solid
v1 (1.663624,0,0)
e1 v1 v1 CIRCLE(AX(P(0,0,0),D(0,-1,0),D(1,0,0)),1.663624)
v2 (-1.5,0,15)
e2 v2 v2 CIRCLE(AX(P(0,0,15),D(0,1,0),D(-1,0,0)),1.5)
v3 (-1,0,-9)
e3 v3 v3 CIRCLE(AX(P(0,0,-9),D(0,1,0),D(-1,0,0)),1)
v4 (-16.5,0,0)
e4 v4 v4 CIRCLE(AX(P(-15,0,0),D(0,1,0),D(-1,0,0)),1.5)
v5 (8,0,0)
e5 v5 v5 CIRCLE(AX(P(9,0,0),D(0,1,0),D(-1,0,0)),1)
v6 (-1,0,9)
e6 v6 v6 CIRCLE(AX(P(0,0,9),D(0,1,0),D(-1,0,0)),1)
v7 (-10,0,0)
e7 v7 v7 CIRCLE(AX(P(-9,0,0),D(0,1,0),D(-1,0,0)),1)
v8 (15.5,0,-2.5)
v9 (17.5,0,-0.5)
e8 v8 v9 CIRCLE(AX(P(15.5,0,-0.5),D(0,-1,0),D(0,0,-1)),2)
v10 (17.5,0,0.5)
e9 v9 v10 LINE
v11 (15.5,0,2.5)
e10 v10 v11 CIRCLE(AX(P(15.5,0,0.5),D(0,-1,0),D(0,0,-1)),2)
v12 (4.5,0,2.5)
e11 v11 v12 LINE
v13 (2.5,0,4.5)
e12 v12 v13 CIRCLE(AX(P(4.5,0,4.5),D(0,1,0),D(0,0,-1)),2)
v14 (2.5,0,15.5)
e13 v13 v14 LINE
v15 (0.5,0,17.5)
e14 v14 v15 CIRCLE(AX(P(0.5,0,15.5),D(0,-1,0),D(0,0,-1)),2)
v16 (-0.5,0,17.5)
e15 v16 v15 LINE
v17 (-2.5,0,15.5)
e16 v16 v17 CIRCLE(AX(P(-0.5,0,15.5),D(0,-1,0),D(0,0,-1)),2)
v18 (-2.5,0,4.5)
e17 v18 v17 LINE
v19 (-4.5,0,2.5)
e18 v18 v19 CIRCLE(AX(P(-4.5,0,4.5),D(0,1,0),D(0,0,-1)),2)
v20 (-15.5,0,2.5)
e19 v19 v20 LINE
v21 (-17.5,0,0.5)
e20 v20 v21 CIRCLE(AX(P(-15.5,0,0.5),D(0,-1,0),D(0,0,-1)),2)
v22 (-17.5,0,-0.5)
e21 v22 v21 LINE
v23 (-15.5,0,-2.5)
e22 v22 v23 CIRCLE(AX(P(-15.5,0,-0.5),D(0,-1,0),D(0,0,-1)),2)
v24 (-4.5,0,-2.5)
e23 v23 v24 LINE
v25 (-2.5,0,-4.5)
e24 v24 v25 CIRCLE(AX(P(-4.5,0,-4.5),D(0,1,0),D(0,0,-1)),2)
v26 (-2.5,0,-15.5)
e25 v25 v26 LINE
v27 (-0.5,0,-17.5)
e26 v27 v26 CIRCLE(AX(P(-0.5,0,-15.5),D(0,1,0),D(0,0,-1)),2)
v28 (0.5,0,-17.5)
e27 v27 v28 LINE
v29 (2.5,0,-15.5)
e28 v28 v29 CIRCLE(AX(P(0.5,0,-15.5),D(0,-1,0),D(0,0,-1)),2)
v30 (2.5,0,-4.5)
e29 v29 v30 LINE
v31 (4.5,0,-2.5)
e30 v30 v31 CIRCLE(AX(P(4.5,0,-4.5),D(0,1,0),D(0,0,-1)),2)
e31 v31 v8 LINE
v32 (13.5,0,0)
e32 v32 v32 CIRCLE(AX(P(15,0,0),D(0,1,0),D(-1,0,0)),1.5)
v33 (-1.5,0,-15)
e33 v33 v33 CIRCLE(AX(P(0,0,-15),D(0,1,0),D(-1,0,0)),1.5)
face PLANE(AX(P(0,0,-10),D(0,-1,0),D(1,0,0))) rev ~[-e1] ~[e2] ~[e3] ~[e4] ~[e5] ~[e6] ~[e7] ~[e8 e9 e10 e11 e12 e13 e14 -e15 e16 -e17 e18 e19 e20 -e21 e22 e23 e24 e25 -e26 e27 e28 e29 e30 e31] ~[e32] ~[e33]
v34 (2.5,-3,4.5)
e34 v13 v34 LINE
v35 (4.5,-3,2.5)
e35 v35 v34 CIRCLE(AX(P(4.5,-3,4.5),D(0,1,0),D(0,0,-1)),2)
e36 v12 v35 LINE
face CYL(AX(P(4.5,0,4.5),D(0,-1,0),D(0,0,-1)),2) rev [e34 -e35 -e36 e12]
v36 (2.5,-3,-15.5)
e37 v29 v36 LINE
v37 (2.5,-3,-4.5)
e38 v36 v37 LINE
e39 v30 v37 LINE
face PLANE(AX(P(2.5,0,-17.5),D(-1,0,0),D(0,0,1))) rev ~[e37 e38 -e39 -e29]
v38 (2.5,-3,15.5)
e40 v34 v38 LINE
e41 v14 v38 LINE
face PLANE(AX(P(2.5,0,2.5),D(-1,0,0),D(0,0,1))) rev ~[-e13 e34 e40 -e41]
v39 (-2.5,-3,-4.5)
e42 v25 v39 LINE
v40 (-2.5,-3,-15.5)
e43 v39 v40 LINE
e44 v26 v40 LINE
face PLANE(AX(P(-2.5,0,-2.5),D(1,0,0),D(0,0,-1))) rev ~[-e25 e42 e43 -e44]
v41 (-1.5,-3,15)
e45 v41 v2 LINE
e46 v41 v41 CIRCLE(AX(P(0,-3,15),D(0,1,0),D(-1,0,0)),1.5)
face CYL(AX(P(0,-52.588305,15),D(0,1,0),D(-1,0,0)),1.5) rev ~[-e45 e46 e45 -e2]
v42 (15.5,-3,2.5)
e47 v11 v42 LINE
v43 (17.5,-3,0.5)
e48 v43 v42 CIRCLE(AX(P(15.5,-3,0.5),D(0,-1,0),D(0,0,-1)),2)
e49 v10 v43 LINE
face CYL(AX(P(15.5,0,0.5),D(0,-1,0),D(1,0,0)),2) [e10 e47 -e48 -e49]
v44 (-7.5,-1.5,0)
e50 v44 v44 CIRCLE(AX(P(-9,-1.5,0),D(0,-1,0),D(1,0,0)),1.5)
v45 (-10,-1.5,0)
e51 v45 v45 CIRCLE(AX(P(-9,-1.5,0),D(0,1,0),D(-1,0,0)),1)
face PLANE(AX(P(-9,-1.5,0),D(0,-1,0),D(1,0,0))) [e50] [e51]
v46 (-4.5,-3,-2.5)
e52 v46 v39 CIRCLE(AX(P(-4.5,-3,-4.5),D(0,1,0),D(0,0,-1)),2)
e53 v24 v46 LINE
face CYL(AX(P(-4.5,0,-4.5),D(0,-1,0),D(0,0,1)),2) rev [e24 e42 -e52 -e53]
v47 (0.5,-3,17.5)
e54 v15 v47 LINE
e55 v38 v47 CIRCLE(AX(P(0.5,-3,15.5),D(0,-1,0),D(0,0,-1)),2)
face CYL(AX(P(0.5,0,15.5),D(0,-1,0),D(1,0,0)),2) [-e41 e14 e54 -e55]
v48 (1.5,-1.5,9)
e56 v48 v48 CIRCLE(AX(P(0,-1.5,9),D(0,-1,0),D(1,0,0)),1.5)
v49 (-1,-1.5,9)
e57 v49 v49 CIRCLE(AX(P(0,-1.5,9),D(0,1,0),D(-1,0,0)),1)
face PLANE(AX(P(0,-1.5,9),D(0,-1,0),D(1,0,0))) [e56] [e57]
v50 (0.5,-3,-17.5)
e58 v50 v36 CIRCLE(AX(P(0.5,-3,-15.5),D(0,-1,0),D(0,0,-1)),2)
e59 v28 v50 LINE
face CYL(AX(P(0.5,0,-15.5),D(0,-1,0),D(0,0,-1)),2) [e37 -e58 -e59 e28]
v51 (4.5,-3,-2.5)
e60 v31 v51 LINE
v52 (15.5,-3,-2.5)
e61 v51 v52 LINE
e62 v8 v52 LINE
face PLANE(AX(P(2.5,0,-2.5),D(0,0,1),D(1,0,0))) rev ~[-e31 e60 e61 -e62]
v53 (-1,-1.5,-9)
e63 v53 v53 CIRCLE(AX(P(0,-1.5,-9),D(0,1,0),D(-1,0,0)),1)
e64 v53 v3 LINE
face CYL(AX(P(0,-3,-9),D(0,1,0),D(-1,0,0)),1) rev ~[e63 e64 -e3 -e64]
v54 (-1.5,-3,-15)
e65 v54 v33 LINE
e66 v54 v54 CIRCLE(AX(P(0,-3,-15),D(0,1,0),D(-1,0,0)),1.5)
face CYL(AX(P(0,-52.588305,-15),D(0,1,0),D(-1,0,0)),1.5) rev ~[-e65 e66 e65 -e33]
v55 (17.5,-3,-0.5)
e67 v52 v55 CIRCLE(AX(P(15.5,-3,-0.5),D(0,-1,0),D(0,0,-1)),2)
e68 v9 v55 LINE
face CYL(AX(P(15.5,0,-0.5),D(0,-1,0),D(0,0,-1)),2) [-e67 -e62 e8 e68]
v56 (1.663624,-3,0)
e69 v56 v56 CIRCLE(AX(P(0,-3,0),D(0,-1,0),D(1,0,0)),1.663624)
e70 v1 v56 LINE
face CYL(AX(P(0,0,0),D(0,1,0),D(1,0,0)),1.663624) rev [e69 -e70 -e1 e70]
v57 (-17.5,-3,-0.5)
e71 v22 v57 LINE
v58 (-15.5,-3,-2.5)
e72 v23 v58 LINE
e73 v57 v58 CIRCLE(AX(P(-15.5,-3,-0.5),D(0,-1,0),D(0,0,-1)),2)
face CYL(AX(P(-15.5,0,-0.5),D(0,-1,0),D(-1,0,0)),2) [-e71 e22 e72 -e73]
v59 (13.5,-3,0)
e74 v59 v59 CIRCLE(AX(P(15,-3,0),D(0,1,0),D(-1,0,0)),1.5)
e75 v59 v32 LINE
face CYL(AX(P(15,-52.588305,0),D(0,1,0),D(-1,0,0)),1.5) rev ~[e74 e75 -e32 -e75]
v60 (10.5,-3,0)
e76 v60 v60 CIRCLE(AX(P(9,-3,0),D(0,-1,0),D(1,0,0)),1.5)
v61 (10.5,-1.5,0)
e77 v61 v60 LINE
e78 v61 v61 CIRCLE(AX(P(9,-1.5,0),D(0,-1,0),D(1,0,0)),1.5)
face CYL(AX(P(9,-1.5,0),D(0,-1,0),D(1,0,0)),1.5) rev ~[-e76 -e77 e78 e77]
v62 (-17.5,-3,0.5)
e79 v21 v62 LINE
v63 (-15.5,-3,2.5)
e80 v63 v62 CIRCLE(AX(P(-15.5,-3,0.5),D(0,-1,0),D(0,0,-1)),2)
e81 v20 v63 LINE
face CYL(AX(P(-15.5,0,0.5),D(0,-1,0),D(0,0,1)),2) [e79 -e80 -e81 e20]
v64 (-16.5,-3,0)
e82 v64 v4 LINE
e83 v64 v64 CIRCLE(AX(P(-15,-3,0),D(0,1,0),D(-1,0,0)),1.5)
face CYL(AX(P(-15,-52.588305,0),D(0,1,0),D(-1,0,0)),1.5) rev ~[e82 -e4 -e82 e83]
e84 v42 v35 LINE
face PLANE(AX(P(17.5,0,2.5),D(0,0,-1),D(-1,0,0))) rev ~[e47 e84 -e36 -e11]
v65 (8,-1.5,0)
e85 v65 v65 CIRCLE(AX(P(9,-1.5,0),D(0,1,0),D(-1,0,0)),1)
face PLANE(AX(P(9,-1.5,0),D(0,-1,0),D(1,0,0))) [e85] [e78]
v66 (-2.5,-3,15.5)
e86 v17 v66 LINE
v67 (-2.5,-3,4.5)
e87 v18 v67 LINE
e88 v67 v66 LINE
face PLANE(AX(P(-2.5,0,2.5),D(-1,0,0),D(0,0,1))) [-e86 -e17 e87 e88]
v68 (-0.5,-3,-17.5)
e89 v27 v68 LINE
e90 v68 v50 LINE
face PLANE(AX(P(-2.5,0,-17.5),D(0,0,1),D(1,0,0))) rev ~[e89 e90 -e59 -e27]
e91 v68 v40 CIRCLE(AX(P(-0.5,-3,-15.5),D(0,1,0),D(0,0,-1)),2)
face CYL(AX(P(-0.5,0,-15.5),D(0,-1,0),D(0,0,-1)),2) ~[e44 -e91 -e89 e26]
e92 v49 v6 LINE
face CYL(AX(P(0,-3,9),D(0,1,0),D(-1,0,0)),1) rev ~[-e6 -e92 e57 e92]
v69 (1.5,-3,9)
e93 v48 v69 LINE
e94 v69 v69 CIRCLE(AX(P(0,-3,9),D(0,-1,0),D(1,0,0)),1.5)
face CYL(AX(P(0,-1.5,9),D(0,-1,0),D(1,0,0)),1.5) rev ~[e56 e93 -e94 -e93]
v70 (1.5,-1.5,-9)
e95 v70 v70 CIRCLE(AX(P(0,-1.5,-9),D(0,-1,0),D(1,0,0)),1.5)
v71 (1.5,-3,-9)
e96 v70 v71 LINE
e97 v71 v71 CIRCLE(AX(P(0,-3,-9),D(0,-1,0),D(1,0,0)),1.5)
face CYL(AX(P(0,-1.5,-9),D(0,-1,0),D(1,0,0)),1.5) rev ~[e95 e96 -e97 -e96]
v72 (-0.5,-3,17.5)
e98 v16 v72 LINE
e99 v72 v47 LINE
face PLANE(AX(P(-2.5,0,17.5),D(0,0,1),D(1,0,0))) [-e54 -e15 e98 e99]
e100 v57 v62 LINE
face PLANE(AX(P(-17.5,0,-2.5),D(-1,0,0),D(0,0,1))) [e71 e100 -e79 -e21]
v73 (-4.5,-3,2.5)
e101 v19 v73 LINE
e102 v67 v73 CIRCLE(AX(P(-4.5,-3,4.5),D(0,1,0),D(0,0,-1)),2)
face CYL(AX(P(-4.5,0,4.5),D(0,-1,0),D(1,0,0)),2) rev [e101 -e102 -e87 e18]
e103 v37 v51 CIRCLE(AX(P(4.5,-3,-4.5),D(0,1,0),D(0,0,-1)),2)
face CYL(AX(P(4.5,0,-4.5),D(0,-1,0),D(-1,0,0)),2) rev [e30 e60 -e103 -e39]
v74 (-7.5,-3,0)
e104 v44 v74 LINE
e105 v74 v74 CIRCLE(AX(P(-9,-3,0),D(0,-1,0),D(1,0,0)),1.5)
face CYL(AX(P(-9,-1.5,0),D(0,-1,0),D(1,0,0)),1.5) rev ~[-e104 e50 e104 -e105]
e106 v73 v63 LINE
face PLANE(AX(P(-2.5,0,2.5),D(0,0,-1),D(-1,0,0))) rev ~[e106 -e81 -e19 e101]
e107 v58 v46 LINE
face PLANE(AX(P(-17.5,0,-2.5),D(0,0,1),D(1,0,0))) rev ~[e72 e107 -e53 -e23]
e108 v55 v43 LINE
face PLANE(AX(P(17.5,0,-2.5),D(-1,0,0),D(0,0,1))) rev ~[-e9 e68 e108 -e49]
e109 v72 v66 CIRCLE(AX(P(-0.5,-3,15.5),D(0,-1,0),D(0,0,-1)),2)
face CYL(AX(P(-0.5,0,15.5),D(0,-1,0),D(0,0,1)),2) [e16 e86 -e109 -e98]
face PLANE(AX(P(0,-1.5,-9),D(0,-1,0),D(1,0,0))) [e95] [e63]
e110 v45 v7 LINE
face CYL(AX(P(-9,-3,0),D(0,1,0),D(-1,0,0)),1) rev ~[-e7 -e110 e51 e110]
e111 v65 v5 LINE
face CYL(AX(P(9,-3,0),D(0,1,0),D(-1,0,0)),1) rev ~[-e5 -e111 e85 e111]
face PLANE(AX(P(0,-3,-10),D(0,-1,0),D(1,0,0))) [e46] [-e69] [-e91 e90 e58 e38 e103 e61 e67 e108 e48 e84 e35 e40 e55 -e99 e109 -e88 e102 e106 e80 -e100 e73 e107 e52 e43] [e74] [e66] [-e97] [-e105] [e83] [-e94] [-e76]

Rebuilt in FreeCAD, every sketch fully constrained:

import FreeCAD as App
import Part
import Sketcher

V = App.Vector


def edges_at(feature, points):
    """Names of the edges that pass closest to the given points."""
    edges = feature.Shape.Edges
    near = lambda p: min(range(len(edges)), key=lambda i: edges[i].distToShape(Part.Vertex(*p))[0])
    return sorted({f"Edge{near(p) + 1}" for p in points})


def add_polygon(sketch, points):
    """Adds a closed chain of lines whose ends are joined by coincident constraints."""
    first, n = sketch.GeometryCount, len(points)
    for a, b in zip(points, points[1:] + points[:1]):
        sketch.addGeometry(Part.LineSegment(App.Vector(*a, 0), App.Vector(*b, 0)), False)
    for i in range(n):
        sketch.addConstraint(Sketcher.Constraint("Coincident", first + i, 2, first + (i + 1) % n, 1))

doc = App.newDocument("Part")
body = doc.addObject("PartDesign::Body", "Body")

sketch1 = body.newObject("Sketcher::SketchObject", "Sketch")
sketch1.AttachmentSupport = (doc.getObject("XZ_Plane"), [""])
sketch1.MapMode = "FlatFace"
add_polygon(sketch1, [(-2.5, -17.5), (2.5, -17.5), (2.5, -2.5), (17.5, -2.5), (17.5, 2.5), (2.5, 2.5), (2.5, 17.5), (-2.5, 17.5), (-2.5, 2.5), (-17.5, 2.5), (-17.5, -2.5), (-2.5, -2.5)])
sketch1.addGeometry(Part.Circle(V(0, 0, 0), V(0, 0, 1), 1.7), False)
sketch1.addConstraint(Sketcher.Constraint("Horizontal", 0))
sketch1.addConstraint(Sketcher.Constraint("Vertical", 1))
sketch1.addConstraint(Sketcher.Constraint("Horizontal", 2))
sketch1.addConstraint(Sketcher.Constraint("Vertical", 3))
sketch1.addConstraint(Sketcher.Constraint("Horizontal", 4))
sketch1.addConstraint(Sketcher.Constraint("Vertical", 5))
sketch1.addConstraint(Sketcher.Constraint("Horizontal", 6))
sketch1.addConstraint(Sketcher.Constraint("Vertical", 7))
sketch1.addConstraint(Sketcher.Constraint("Horizontal", 8))
sketch1.addConstraint(Sketcher.Constraint("Vertical", 9))
sketch1.addConstraint(Sketcher.Constraint("Horizontal", 10))
sketch1.addConstraint(Sketcher.Constraint("Vertical", 11))
sketch1.addConstraint(Sketcher.Constraint("Coincident", 12, 3, -1, 1))
sketch1.addConstraint(Sketcher.Constraint("Symmetric", 0, 2, 6, 2, -1, 1))
sketch1.addConstraint(Sketcher.Constraint("Symmetric", 2, 2, 8, 2, -1, 1))
sketch1.addConstraint(Sketcher.Constraint("Symmetric", 4, 2, 10, 2, -1, 1))
sketch1.addConstraint(Sketcher.Constraint("Symmetric", 4, 2, 7, 2, -2))
sketch1.addConstraint(Sketcher.Constraint("Equal", 10, 1))
sketch1.addConstraint(Sketcher.Constraint("Equal", 6, 3))
sketch1.addConstraint(Sketcher.Constraint("DistanceX", 0, 1, 0, 2, 5.0))
sketch1.addConstraint(Sketcher.Constraint("DistanceX", 2, 1, 2, 2, 15.0))
sketch1.addConstraint(Sketcher.Constraint("Diameter", 12, 3.327249))
pad1 = body.newObject("PartDesign::Pad", "Pad")
pad1.Profile = sketch1
pad1.Length = 3
doc.recompute()

fillet = body.newObject("PartDesign::Fillet", "Fillet")
fillet.Base = (pad1, edges_at(pad1, [
    (17.5, -1.5, 2.5),
    (17.5, -1.5, -2.5),
    (2.5, -1.5, -17.5),
    (-17.5, -1.5, 2.5),
    (2.5, -1.5, 17.5),
    (-2.5, -1.5, 17.5),
    (-2.5, -1.5, -17.5),
    (-17.5, -1.5, -2.5),
    (-2.5, -1.5, 2.5),
    (2.5, -1.5, -2.5),
    (2.5, -1.5, 2.5),
    (-2.5, -1.5, -2.5),
]))
fillet.Radius = 2

sketch2 = body.newObject("Sketcher::SketchObject", "Sketch001")
sketch2.AttachmentSupport = (doc.getObject("XZ_Plane"), [""])
sketch2.MapMode = "FlatFace"
sketch2.AttachmentOffset = App.Placement(V(0, 0, 3), App.Rotation())
sketch2.addGeometry(Part.Circle(V(-15, 0, 0), V(0, 0, 1), 1.5), False)
sketch2.addGeometry(Part.Circle(V(0, 15, 0), V(0, 0, 1), 1.5), False)
sketch2.addGeometry(Part.Circle(V(15, 0, 0), V(0, 0, 1), 1.5), False)
sketch2.addGeometry(Part.Circle(V(0, -15, 0), V(0, 0, 1), 1.5), False)
sketch2.addConstraint(Sketcher.Constraint("Equal", 0, 1))
sketch2.addConstraint(Sketcher.Constraint("Equal", 1, 2))
sketch2.addConstraint(Sketcher.Constraint("Equal", 2, 3))
sketch2.addConstraint(Sketcher.Constraint("Symmetric", 0, 3, 2, 3, -1, 1))
sketch2.addConstraint(Sketcher.Constraint("Symmetric", 1, 3, 3, 3, -1, 1))
sketch2.addConstraint(Sketcher.Constraint("PointOnObject", 0, 3, -1))
sketch2.addConstraint(Sketcher.Constraint("PointOnObject", 1, 3, -2))
sketch2.addConstraint(Sketcher.Constraint("Diameter", 0, 3.0))
sketch2.addConstraint(Sketcher.Constraint("DistanceX", 0, 3, -1, 1, 15.0))
sketch2.addConstraint(Sketcher.Constraint("DistanceY", -1, 1, 1, 3, 15.0))
doc.recompute()
hole = body.newObject("PartDesign::Hole", "Hole")
hole.Profile = sketch2
hole.ThreadType = "None"
hole.Diameter = 3
hole.DepthType = "ThroughAll"

sketch3 = body.newObject("Sketcher::SketchObject", "Sketch002")
sketch3.AttachmentSupport = (doc.getObject("XZ_Plane"), [""])
sketch3.MapMode = "FlatFace"
sketch3.AttachmentOffset = App.Placement(V(0, 0, 3), App.Rotation())
sketch3.addGeometry(Part.Circle(V(0, 9, 0), V(0, 0, 1), 1), False)
sketch3.addGeometry(Part.Circle(V(9, 0, 0), V(0, 0, 1), 1), False)
sketch3.addGeometry(Part.Circle(V(0, -9, 0), V(0, 0, 1), 1), False)
sketch3.addGeometry(Part.Circle(V(-9, 0, 0), V(0, 0, 1), 1), False)
sketch3.addConstraint(Sketcher.Constraint("Equal", 0, 1))
sketch3.addConstraint(Sketcher.Constraint("Equal", 1, 2))
sketch3.addConstraint(Sketcher.Constraint("Equal", 2, 3))
sketch3.addConstraint(Sketcher.Constraint("Symmetric", 0, 3, 2, 3, -1, 1))
sketch3.addConstraint(Sketcher.Constraint("Symmetric", 1, 3, 3, 3, -1, 1))
sketch3.addConstraint(Sketcher.Constraint("PointOnObject", 0, 3, -2))
sketch3.addConstraint(Sketcher.Constraint("PointOnObject", 1, 3, -1))
sketch3.addConstraint(Sketcher.Constraint("Diameter", 0, 2.0))
sketch3.addConstraint(Sketcher.Constraint("DistanceY", -1, 1, 0, 3, 9.0))
sketch3.addConstraint(Sketcher.Constraint("DistanceX", -1, 1, 1, 3, 9.0))
doc.recompute()
hole2 = body.newObject("PartDesign::Hole", "Hole001")
hole2.Profile = sketch3
hole2.ThreadType = "None"
hole2.Diameter = 2
hole2.DepthType = "ThroughAll"
hole2.HoleCutType = "Counterbore"
hole2.HoleCutDiameter = 3
hole2.HoleCutDepth = 1.5

doc.recompute()
